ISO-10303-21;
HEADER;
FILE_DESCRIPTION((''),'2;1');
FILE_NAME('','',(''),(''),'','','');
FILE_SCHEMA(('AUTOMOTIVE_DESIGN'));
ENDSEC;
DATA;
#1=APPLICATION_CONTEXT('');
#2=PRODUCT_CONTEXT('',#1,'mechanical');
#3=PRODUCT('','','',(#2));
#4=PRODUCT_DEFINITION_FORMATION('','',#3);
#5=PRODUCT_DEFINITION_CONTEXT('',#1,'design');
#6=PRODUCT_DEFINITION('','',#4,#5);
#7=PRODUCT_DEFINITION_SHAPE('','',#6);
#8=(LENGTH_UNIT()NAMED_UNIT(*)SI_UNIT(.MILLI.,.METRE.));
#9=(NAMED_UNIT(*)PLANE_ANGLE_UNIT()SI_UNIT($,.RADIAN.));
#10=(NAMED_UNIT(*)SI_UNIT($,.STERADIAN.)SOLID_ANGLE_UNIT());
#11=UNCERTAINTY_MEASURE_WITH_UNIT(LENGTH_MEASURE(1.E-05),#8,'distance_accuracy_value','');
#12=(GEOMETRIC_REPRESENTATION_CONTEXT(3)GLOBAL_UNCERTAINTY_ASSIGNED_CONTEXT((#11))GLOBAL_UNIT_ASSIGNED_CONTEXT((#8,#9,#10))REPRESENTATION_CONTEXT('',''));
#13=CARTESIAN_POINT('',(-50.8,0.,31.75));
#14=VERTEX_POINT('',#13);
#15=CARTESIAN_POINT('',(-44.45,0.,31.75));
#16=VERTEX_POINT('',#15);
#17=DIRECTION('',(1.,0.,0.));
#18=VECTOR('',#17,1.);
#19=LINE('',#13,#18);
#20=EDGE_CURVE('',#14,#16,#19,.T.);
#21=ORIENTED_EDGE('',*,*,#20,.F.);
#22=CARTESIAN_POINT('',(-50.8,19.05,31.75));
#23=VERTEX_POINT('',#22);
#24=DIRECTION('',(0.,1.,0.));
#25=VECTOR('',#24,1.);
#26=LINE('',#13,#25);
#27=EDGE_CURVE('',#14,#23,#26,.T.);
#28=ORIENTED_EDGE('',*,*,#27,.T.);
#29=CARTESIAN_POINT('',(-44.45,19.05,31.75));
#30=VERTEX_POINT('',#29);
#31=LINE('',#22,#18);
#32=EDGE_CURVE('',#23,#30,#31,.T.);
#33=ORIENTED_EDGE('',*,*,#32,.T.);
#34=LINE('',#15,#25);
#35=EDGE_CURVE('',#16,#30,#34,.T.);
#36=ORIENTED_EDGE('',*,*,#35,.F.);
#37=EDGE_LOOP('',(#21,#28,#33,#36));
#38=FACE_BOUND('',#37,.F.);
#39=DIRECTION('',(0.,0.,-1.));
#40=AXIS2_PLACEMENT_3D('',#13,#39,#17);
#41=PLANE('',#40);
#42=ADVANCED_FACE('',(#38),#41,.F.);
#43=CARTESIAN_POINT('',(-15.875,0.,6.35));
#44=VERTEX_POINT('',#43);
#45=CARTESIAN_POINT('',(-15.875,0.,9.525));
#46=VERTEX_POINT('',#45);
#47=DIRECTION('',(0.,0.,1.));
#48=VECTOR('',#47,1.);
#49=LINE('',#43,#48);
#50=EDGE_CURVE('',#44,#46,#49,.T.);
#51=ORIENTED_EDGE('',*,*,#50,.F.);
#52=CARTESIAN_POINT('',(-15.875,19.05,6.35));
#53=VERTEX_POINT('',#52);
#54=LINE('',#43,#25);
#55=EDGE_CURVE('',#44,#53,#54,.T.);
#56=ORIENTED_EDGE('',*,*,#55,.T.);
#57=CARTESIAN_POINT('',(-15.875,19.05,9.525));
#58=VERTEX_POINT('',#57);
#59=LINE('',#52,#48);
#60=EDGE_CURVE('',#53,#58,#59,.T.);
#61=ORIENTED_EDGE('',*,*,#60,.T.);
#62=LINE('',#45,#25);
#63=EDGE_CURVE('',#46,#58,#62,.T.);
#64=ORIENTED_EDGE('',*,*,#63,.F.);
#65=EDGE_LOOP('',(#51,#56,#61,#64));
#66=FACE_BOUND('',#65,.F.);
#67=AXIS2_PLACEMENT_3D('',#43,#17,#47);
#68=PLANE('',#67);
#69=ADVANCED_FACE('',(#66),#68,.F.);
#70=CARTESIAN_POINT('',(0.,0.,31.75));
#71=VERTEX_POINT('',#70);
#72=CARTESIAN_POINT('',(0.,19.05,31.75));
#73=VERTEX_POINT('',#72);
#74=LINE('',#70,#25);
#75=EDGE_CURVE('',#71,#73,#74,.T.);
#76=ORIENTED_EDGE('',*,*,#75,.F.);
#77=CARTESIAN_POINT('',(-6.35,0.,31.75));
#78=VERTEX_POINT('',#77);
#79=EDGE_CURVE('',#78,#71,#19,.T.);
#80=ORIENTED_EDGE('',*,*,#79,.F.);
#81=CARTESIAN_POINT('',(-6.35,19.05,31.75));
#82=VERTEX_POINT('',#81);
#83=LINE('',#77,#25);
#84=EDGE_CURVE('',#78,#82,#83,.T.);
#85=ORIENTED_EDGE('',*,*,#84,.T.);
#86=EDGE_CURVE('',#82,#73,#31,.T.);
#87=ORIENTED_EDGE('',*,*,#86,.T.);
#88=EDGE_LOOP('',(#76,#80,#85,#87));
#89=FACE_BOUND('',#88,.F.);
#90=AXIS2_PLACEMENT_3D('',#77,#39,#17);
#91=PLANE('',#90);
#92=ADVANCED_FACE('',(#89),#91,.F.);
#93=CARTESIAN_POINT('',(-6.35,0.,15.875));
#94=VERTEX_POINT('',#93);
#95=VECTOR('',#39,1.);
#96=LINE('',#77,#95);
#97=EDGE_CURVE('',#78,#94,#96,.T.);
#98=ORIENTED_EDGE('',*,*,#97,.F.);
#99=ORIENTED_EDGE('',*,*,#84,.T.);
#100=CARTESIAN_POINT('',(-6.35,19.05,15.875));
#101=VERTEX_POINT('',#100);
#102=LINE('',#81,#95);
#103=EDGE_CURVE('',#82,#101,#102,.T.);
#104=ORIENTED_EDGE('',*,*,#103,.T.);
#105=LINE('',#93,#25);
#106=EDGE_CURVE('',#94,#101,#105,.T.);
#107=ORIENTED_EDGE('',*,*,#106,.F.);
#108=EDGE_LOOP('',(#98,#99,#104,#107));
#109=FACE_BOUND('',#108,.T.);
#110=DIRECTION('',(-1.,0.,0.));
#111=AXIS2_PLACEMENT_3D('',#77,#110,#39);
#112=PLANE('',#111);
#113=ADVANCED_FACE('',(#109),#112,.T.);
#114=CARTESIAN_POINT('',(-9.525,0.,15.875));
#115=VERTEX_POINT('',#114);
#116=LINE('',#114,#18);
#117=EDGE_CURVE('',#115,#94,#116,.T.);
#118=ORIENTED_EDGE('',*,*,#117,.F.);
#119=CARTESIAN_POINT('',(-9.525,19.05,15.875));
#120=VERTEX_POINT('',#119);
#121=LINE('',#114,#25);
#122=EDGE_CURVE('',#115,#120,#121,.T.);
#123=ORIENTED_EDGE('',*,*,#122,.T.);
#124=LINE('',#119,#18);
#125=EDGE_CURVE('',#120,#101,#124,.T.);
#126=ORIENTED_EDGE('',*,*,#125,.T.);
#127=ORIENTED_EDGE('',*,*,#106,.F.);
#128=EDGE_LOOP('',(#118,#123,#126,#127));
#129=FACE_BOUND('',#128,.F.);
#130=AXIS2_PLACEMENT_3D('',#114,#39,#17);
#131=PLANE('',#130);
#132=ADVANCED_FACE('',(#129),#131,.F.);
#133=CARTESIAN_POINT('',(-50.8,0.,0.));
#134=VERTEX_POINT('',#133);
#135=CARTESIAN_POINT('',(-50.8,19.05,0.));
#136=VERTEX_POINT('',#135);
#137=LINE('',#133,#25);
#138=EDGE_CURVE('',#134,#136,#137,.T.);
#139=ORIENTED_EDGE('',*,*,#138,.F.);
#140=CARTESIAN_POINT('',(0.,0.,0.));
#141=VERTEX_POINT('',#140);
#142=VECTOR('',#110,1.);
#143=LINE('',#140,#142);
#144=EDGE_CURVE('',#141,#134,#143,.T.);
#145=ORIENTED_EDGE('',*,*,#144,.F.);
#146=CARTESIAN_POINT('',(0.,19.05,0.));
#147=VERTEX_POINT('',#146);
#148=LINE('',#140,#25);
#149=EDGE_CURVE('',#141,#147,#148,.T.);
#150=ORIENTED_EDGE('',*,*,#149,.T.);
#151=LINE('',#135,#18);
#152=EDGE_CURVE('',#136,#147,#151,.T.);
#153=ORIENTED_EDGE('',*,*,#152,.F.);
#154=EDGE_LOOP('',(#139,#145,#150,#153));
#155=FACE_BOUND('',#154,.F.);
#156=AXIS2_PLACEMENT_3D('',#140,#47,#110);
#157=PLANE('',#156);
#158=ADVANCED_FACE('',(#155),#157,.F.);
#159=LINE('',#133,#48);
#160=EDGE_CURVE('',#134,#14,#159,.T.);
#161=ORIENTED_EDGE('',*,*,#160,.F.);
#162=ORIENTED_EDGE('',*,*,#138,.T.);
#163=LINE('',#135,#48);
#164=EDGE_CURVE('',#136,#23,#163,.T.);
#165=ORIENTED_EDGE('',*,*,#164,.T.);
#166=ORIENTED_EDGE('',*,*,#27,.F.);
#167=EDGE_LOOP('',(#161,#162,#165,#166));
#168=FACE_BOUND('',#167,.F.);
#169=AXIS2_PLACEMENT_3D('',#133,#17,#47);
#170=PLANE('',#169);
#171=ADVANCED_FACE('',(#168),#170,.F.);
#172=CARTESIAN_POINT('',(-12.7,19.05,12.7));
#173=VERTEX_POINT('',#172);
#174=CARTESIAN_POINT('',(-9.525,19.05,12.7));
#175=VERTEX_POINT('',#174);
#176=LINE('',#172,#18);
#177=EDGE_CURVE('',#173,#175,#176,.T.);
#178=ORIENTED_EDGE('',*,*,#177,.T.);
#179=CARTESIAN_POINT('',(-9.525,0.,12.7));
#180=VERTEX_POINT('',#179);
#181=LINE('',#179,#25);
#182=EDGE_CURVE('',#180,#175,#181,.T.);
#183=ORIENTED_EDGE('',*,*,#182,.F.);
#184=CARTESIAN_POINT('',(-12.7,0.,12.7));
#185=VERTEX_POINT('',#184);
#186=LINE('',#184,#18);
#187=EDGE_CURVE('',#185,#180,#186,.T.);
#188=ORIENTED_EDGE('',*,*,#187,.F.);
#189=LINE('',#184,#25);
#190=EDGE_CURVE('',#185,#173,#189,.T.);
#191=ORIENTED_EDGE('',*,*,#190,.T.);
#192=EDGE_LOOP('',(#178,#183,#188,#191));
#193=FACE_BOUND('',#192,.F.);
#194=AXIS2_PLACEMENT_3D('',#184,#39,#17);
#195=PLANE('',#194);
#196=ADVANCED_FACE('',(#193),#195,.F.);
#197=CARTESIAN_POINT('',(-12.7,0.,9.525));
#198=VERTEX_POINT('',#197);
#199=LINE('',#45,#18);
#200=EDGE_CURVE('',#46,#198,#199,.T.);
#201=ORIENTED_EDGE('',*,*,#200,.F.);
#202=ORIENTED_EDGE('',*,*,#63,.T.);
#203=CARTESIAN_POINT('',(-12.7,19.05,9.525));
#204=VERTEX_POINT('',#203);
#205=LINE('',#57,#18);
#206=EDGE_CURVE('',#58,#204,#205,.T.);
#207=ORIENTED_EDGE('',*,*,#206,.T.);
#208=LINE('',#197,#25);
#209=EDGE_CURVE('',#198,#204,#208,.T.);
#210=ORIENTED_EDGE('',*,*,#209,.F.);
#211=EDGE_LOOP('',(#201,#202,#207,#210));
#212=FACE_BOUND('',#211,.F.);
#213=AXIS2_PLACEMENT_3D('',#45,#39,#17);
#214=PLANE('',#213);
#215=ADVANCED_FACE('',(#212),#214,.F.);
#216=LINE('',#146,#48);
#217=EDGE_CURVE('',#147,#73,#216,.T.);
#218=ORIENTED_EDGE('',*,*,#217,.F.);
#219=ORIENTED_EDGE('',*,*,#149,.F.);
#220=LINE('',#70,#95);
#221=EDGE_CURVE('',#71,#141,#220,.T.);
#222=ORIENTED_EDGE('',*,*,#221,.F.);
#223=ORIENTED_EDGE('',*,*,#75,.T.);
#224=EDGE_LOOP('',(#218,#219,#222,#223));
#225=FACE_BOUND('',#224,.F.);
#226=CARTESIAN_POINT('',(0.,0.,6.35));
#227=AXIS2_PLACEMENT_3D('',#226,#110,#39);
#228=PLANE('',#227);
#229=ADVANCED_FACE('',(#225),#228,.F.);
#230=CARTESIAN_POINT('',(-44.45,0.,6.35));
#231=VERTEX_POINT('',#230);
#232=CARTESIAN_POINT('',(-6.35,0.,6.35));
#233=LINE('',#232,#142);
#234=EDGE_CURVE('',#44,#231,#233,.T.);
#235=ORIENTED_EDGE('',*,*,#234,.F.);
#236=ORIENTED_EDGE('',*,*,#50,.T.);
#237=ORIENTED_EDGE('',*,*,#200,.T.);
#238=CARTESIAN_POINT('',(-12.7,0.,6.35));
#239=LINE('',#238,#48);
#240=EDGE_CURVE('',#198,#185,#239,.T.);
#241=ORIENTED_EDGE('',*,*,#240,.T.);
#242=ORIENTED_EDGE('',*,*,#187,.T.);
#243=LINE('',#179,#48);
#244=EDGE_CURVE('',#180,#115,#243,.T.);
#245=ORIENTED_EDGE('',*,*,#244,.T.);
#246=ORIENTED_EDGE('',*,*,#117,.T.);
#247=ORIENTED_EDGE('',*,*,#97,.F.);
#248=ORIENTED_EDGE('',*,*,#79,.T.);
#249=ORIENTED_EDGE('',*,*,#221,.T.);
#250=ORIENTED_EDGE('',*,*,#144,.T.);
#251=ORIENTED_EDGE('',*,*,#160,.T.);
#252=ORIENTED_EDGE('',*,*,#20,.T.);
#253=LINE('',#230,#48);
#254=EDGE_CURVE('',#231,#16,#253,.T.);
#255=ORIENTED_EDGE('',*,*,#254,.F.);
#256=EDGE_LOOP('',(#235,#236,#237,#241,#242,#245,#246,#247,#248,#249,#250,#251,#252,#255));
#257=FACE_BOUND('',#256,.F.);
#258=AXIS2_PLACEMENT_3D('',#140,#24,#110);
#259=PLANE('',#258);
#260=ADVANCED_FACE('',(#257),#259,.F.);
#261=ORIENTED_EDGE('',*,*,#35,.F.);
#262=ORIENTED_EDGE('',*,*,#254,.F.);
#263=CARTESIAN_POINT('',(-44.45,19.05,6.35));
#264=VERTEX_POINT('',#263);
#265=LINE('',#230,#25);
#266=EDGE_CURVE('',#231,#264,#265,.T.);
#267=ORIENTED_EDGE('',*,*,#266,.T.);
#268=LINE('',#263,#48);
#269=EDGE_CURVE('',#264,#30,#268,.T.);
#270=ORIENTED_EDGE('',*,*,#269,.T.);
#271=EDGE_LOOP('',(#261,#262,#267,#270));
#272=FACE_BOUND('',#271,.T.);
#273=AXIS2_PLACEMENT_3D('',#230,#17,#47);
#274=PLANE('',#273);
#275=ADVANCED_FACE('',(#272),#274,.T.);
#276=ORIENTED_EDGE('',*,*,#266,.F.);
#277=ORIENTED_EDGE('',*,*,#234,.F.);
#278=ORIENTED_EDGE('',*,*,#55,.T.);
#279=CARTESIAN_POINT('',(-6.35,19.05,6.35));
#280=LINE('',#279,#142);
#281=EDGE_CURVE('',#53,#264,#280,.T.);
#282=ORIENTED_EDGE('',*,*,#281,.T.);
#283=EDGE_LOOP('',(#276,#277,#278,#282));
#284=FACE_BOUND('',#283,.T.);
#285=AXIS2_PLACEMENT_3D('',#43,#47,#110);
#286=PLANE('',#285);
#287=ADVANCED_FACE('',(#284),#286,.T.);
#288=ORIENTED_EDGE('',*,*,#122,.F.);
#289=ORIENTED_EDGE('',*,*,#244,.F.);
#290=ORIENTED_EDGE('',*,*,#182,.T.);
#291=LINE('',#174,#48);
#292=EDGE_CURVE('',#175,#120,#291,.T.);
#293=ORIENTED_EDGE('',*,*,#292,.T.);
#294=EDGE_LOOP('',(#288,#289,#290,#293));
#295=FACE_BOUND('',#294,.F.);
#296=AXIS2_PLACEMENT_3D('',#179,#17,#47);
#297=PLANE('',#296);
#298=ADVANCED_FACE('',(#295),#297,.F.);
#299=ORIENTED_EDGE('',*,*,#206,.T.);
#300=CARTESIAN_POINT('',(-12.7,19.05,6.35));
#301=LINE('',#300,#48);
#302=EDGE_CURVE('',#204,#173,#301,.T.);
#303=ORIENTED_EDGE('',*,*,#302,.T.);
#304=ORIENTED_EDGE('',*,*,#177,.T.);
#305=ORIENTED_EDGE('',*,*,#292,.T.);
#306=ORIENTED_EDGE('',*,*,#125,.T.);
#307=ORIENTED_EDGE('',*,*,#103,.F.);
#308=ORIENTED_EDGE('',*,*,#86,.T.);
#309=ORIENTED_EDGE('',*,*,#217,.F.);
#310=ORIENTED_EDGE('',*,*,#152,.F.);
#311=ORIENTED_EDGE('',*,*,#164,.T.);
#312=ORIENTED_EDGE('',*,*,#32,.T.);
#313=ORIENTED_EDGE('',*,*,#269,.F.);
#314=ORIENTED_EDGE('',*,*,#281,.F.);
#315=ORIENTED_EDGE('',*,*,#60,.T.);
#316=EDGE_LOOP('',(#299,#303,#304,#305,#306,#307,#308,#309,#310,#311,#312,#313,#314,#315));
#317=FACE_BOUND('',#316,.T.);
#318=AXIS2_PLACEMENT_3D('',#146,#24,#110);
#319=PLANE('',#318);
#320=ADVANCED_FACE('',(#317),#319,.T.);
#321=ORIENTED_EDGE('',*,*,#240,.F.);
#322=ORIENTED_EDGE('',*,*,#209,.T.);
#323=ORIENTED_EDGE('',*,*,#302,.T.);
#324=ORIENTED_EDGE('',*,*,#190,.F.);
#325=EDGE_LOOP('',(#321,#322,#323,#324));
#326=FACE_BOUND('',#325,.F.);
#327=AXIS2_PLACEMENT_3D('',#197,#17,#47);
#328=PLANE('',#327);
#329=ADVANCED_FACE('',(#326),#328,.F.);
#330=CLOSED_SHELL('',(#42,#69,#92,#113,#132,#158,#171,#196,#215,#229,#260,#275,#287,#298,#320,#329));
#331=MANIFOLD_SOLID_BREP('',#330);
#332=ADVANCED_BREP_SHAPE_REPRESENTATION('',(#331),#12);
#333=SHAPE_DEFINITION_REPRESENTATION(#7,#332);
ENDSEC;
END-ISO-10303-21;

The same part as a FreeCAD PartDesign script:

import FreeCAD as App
import Part
import Sketcher

V = App.Vector
Q = App.Units.Quantity

doc = App.newDocument("Part")
body = doc.addObject("PartDesign::Body", "Body")

sketch1 = body.newObject("Sketcher::SketchObject", "Sketch")
sketch1.AttachmentSupport = (doc.getObject("XZ_Plane"), [""])
sketch1.MapMode = "FlatFace"
sketch1.addGeometry(Part.LineSegment(V(0, 0, 0), V(-50.8, 0, 0)), False)
sketch1.addGeometry(Part.LineSegment(V(-50.8, 0, 0), V(-50.8, 31.8, 0)), False)
sketch1.addGeometry(Part.LineSegment(V(-50.8, 31.8, 0), V(-44.5, 31.8, 0)), False)
sketch1.addGeometry(Part.LineSegment(V(-44.5, 31.8, 0), V(-44.5, 6.3, 0)), False)
sketch1.addGeometry(Part.LineSegment(V(-44.5, 6.3, 0), V(-15.9, 6.3, 0)), False)
sketch1.addGeometry(Part.LineSegment(V(-15.9, 6.3, 0), V(-15.9, 9.5, 0)), False)
sketch1.addGeometry(Part.LineSegment(V(-15.9, 9.5, 0), V(-12.7, 9.5, 0)), False)
sketch1.addGeometry(Part.LineSegment(V(-12.7, 9.5, 0), V(-12.7, 12.7, 0)), False)
sketch1.addGeometry(Part.LineSegment(V(-12.7, 12.7, 0), V(-9.5, 12.7, 0)), False)
sketch1.addGeometry(Part.LineSegment(V(-9.5, 12.7, 0), V(-9.5, 15.9, 0)), False)
sketch1.addGeometry(Part.LineSegment(V(-9.5, 15.9, 0), V(-6.3, 15.9, 0)), False)
sketch1.addGeometry(Part.LineSegment(V(-6.3, 15.9, 0), V(-6.3, 31.8, 0)), False)
sketch1.addGeometry(Part.LineSegment(V(-6.3, 31.8, 0), V(0, 31.8, 0)), False)
sketch1.addGeometry(Part.LineSegment(V(0, 31.8, 0), V(0, 0, 0)), False)
sketch1.addConstraint(Sketcher.Constraint("Coincident", 0, 2, 1, 1))
sketch1.addConstraint(Sketcher.Constraint("Coincident", 1, 2, 2, 1))
sketch1.addConstraint(Sketcher.Constraint("Coincident", 2, 2, 3, 1))
sketch1.addConstraint(Sketcher.Constraint("Coincident", 3, 2, 4, 1))
sketch1.addConstraint(Sketcher.Constraint("Coincident", 4, 2, 5, 1))
sketch1.addConstraint(Sketcher.Constraint("Coincident", 5, 2, 6, 1))
sketch1.addConstraint(Sketcher.Constraint("Coincident", 6, 2, 7, 1))
sketch1.addConstraint(Sketcher.Constraint("Coincident", 7, 2, 8, 1))
sketch1.addConstraint(Sketcher.Constraint("Coincident", 8, 2, 9, 1))
sketch1.addConstraint(Sketcher.Constraint("Coincident", 9, 2, 10, 1))
sketch1.addConstraint(Sketcher.Constraint("Coincident", 10, 2, 11, 1))
sketch1.addConstraint(Sketcher.Constraint("Coincident", 11, 2, 12, 1))
sketch1.addConstraint(Sketcher.Constraint("Coincident", 12, 2, 13, 1))
sketch1.addConstraint(Sketcher.Constraint("Coincident", 13, 2, 0, 1))
sketch1.addConstraint(Sketcher.Constraint("Horizontal", 0))
sketch1.addConstraint(Sketcher.Constraint("Vertical", 1))
sketch1.addConstraint(Sketcher.Constraint("Horizontal", 2))
sketch1.addConstraint(Sketcher.Constraint("Vertical", 3))
sketch1.addConstraint(Sketcher.Constraint("Horizontal", 4))
sketch1.addConstraint(Sketcher.Constraint("Vertical", 5))
sketch1.addConstraint(Sketcher.Constraint("Horizontal", 6))
sketch1.addConstraint(Sketcher.Constraint("Vertical", 7))
sketch1.addConstraint(Sketcher.Constraint("Horizontal", 8))
sketch1.addConstraint(Sketcher.Constraint("Vertical", 9))
sketch1.addConstraint(Sketcher.Constraint("Horizontal", 10))
sketch1.addConstraint(Sketcher.Constraint("Vertical", 11))
sketch1.addConstraint(Sketcher.Constraint("Horizontal", 12))
sketch1.addConstraint(Sketcher.Constraint("Vertical", 13))
sketch1.addConstraint(Sketcher.Constraint("Coincident", 13, 2, -1, 1))
sketch1.addConstraint(Sketcher.Constraint("Horizontal", 2, 2, 11, 2))
sketch1.addConstraint(Sketcher.Constraint("Equal", 6, 8))
sketch1.addConstraint(Sketcher.Constraint("Equal", 8, 10))
sketch1.addConstraint(Sketcher.Constraint("Equal", 2, 12))
sketch1.addConstraint(Sketcher.Constraint("Equal", 10, 5))
sketch1.addConstraint(Sketcher.Constraint("Equal", 5, 7))
sketch1.addConstraint(Sketcher.Constraint("Equal", 7, 9))
sketch1.addConstraint(Sketcher.Constraint("DistanceX", 0, 2, 0, 1, Q("2 in")))
sketch1.addConstraint(Sketcher.Constraint("DistanceY", 3, 2, 3, 1, Q("1 in")))
sketch1.addConstraint(Sketcher.Constraint("DistanceX", 2, 1, 2, 2, Q("0.25 in")))
sketch1.addConstraint(Sketcher.Constraint("DistanceY", 1, 1, 1, 2, Q("1.25 in")))
sketch1.addConstraint(Sketcher.Constraint("DistanceX", 0, 2, 6, 2, Q("1.5 in")))
pad1 = body.newObject("PartDesign::Pad", "Pad")
pad1.Profile = sketch1
pad1.Length = Q("0.75 in")
pad1.Reversed = True

doc.recompute()
